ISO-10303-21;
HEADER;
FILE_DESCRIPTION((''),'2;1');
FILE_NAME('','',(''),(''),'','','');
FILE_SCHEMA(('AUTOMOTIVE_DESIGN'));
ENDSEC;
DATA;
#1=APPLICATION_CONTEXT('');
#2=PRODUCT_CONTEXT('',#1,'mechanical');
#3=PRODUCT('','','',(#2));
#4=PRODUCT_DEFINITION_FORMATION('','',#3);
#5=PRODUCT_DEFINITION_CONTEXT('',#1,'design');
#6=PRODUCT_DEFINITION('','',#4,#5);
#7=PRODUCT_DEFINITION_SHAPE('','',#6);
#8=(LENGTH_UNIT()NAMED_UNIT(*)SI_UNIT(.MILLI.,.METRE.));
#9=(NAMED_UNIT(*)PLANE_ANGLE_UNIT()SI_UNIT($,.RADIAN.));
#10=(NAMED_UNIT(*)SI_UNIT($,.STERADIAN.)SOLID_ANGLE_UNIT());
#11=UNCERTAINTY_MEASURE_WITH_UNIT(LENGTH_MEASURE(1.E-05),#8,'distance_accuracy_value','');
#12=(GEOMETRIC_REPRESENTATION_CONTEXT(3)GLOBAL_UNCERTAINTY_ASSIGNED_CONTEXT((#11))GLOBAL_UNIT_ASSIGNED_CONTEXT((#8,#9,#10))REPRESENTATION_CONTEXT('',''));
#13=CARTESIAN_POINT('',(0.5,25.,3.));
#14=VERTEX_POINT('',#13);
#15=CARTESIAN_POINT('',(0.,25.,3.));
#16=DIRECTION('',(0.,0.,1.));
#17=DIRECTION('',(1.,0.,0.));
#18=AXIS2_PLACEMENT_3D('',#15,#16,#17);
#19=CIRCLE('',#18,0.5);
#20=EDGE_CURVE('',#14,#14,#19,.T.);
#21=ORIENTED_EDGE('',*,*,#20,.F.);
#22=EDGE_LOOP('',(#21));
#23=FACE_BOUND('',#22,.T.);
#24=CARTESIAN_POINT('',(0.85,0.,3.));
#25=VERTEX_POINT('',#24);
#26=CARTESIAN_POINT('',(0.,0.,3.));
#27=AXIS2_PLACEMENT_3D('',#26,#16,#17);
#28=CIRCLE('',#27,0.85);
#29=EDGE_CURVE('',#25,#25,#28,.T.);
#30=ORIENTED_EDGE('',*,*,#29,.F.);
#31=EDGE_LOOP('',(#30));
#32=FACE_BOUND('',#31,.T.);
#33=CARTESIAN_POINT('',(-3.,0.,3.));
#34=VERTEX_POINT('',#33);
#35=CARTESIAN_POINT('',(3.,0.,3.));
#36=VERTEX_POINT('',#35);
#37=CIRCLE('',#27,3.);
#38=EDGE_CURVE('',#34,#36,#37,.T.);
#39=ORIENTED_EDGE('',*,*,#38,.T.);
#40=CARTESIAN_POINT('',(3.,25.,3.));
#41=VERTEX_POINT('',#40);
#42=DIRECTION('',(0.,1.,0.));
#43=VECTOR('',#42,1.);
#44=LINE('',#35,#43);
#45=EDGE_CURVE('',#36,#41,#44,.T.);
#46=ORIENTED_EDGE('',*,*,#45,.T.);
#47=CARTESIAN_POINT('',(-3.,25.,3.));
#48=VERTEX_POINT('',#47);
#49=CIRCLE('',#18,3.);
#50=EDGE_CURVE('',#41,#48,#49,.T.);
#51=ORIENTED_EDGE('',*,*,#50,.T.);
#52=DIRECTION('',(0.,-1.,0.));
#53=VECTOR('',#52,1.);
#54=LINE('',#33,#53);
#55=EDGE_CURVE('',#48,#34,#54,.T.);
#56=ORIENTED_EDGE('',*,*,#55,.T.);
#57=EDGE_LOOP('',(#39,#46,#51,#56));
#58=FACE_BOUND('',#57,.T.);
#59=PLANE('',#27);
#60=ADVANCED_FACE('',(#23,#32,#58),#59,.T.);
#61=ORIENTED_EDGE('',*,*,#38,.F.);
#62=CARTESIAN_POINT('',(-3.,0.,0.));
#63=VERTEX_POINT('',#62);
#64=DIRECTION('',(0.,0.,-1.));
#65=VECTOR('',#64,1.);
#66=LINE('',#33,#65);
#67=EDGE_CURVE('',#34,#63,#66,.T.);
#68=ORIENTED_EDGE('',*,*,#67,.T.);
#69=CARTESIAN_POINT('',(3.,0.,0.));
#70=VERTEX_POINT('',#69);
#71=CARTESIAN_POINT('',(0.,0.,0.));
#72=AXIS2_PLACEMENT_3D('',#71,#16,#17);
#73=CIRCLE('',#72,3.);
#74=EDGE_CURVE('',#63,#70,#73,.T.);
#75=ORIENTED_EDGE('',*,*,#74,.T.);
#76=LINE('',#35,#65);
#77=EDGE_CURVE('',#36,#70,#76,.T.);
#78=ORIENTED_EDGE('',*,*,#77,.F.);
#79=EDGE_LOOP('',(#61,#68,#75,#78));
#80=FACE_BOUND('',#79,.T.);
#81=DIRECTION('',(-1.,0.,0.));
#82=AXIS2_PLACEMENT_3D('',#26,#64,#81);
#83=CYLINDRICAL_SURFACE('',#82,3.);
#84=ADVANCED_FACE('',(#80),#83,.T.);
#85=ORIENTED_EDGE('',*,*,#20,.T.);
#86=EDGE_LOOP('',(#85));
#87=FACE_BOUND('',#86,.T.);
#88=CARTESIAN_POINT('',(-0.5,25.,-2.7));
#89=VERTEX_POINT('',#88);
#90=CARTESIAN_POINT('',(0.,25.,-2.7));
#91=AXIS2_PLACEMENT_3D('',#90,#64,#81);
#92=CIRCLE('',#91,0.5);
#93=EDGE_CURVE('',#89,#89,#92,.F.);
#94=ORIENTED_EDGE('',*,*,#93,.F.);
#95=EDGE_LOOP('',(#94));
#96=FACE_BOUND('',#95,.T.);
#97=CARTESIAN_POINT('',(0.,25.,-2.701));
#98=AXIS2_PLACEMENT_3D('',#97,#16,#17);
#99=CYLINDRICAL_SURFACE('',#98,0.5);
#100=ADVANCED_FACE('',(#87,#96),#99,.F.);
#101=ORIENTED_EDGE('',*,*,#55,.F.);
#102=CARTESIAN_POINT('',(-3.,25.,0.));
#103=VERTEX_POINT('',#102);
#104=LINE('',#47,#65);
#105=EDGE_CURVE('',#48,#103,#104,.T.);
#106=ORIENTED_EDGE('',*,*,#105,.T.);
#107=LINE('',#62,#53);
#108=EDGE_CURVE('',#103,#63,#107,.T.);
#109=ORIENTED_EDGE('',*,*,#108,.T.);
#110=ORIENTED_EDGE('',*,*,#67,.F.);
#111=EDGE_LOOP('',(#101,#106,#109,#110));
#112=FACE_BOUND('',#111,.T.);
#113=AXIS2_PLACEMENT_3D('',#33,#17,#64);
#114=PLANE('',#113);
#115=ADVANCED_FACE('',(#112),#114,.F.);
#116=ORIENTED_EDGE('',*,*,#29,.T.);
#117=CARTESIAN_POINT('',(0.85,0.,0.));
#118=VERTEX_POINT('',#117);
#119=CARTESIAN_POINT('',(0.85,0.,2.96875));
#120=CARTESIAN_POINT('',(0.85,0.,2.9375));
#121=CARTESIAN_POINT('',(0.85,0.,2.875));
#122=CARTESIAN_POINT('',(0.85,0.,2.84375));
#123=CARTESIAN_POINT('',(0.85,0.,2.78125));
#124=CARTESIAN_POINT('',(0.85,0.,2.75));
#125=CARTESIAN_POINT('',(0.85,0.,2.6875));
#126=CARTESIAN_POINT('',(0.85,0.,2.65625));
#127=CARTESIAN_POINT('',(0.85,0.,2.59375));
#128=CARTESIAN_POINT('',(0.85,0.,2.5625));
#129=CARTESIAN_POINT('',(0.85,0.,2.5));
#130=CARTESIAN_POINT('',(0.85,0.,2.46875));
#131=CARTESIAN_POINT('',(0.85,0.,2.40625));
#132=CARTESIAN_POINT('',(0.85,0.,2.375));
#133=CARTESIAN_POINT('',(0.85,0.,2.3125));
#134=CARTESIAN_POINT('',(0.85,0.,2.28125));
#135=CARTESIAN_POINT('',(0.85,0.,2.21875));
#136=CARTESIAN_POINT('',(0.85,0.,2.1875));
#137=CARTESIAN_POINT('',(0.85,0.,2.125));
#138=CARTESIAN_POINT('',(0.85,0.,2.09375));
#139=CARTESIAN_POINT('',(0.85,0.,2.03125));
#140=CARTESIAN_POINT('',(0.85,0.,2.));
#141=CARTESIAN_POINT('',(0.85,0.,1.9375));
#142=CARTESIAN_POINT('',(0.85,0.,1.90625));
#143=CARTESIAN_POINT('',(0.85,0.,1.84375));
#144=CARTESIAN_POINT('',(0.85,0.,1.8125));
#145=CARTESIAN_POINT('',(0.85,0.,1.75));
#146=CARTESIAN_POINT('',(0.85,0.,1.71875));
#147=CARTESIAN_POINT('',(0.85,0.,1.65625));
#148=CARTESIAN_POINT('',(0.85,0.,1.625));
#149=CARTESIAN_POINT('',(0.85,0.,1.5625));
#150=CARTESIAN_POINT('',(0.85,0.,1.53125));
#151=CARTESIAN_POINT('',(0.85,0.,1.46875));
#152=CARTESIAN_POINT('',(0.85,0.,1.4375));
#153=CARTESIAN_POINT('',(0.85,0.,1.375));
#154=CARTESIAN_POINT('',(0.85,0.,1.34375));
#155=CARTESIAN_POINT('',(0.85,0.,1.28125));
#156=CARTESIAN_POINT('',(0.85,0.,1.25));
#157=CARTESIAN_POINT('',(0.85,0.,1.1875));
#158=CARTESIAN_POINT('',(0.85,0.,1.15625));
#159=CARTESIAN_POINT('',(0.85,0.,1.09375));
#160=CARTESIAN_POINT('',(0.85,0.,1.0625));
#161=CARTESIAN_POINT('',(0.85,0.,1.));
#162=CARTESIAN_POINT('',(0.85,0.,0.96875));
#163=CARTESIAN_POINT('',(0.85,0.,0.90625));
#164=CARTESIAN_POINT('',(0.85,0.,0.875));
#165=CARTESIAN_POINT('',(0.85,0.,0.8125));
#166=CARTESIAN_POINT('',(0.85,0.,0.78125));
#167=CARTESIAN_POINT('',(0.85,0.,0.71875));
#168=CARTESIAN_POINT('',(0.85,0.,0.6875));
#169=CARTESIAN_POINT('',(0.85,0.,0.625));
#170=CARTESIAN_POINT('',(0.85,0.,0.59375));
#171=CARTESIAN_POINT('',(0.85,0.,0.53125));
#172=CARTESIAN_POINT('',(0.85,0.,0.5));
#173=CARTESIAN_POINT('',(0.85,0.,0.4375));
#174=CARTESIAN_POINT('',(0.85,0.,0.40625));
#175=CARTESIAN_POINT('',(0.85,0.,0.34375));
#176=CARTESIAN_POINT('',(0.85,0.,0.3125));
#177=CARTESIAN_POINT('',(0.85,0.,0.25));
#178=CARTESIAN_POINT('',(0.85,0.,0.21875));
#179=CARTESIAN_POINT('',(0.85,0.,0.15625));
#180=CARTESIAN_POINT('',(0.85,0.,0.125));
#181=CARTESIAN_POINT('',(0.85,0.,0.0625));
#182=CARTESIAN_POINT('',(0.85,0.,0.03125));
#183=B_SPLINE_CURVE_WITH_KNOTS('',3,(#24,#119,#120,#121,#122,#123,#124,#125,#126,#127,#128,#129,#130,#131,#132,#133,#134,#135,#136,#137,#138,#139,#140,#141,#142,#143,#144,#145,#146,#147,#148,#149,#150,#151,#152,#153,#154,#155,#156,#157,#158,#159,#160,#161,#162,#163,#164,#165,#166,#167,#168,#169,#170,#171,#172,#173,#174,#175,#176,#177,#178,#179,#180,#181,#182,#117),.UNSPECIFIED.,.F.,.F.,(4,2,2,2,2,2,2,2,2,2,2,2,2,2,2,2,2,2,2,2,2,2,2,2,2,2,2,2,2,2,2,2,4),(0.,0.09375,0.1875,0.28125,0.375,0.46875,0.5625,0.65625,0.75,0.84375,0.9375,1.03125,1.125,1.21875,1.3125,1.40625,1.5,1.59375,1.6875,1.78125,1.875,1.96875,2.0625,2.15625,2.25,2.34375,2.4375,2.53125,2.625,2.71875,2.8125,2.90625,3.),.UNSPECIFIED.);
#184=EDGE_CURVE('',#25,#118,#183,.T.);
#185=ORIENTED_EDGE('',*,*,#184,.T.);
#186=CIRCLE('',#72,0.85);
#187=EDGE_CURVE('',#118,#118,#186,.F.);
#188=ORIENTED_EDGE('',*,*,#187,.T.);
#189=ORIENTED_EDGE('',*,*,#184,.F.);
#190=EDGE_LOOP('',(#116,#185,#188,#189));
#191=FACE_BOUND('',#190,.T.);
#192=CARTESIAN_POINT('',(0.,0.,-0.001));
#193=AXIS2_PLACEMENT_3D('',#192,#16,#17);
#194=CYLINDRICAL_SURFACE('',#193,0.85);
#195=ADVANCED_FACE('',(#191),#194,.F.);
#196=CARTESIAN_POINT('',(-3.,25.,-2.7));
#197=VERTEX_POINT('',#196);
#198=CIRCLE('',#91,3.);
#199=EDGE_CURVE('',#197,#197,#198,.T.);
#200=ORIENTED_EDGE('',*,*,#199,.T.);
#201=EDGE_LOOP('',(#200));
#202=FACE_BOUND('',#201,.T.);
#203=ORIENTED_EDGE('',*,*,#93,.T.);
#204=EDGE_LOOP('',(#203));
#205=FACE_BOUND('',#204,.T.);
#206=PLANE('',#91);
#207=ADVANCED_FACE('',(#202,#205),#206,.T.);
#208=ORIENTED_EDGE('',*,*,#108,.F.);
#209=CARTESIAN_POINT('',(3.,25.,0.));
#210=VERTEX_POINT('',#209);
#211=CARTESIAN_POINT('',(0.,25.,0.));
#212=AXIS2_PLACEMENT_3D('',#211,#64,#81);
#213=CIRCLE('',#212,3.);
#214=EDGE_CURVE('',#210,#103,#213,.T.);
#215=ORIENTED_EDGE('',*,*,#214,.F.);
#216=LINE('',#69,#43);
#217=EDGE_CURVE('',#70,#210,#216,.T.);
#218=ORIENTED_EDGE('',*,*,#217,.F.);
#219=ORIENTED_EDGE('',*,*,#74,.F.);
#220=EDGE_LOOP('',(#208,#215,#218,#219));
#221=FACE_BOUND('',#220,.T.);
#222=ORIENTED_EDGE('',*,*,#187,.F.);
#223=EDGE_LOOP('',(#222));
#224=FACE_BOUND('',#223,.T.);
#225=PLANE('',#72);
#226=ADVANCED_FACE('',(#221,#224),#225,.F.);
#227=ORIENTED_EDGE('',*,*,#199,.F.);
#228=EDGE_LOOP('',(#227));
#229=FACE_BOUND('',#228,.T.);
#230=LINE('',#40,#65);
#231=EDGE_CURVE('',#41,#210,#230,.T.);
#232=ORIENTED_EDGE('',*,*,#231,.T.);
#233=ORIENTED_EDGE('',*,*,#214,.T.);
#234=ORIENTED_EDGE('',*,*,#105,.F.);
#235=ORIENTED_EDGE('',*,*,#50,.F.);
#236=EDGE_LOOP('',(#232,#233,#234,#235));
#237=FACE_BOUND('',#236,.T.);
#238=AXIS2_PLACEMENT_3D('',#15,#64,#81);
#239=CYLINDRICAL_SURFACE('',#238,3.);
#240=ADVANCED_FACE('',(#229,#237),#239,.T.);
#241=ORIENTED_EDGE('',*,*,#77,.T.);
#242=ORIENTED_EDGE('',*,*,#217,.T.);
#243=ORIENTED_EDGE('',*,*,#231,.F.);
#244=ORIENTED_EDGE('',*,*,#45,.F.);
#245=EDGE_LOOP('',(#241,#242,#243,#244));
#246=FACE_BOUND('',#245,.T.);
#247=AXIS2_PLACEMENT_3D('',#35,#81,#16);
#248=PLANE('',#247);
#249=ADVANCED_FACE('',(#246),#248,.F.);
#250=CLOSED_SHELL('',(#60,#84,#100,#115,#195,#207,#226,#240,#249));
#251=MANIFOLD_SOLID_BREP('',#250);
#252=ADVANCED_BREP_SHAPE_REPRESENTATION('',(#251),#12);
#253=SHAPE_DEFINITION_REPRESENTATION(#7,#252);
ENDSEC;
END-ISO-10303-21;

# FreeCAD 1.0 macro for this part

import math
import FreeCAD as App
import Part
import Sketcher

V = App.Vector
Q = App.Units.Quantity

doc = App.newDocument("Part")
body = doc.addObject("PartDesign::Body", "Body")

# Sketch on XY plane
sketch1 = body.newObject("Sketcher::SketchObject", "Sketch")
sketch1.AttachmentSupport = (doc.getObject("XY_Plane"), [""])
sketch1.MapMode = "FlatFace"
sketch1.addGeometry([
    Part.LineSegment(V(-3, 25, 0), V(-3, 0, 0)),
    Part.ArcOfCircle(Part.Circle(V(0, 0, 0), V(0, 0, 1), 3), math.radians(180), math.radians(360)),
    Part.LineSegment(V(3, 0, 0), V(3, 25, 0)),
    Part.ArcOfCircle(Part.Circle(V(0, 25, 0), V(0, 0, 1), 3), math.radians(0), math.radians(180)),
], False)
sketch1.addConstraint([
    Sketcher.Constraint("Tangent", 0, 2, 1, 1),
    Sketcher.Constraint("Tangent", 1, 2, 2, 1),
    Sketcher.Constraint("Tangent", 2, 2, 3, 1),
    Sketcher.Constraint("Tangent", 3, 2, 0, 1),
    Sketcher.Constraint("Vertical", 0),
    Sketcher.Constraint("Vertical", 2),
    Sketcher.Constraint("Coincident", 1, 3, -1, 1),
    Sketcher.Constraint("Radius", 1, Q("3 mm")),
    Sketcher.Constraint("DistanceY", 0, 2, 0, 1, Q("25 mm")),
])
pad1 = body.newObject("PartDesign::Pad", "Pad")
pad1.Profile = sketch1
pad1.Length = 3

# Sketch on XY plane
sketch2 = body.newObject("Sketcher::SketchObject", "Sketch001")
sketch2.AttachmentSupport = (doc.getObject("XY_Plane"), [""])
sketch2.MapMode = "FlatFace"
sketch2.AttachmentOffset = App.Placement(V(0, 0, 3), App.Rotation())
sketch2.addGeometry(Part.Circle(V(0, 0, 0), V(0, 0, 1), 0.85), False)
sketch2.addConstraint([
    Sketcher.Constraint("Coincident", 0, 3, -1, 1),
    Sketcher.Constraint("Diameter", 0, Q("1.7 mm")),
])
pocket1 = body.newObject("PartDesign::Pocket", "Pocket")
pocket1.Profile = sketch2
pocket1.Type = "UpToFirst"

# Sketch on XY plane
sketch3 = body.newObject("Sketcher::SketchObject", "Sketch002")
sketch3.AttachmentSupport = (doc.getObject("XY_Plane"), [""])
sketch3.MapMode = "FlatFace"
sketch3.AttachmentOffset = App.Placement(V(0, 0, -2.7), App.Rotation())
sketch3.addGeometry(Part.Circle(V(0, 25, 0), V(0, 0, 1), 3), False)
sketch3.addConstraint([
    Sketcher.Constraint("PointOnObject", 0, 3, -2),
    Sketcher.Constraint("Diameter", 0, Q("6 mm")),
    Sketcher.Constraint("DistanceY", -1, 1, 0, 3, Q("25 mm")),
])
pad2 = body.newObject("PartDesign::Pad", "Pad001")
pad2.Profile = sketch3
pad2.Length = 2.7

# Sketch on XY plane
sketch4 = body.newObject("Sketcher::SketchObject", "Sketch003")
sketch4.AttachmentSupport = (doc.getObject("XY_Plane"), [""])
sketch4.MapMode = "FlatFace"
sketch4.AttachmentOffset = App.Placement(V(0, 0, 3), App.Rotation())
sketch4.addGeometry(Part.Circle(V(0, 25, 0), V(0, 0, 1), 0.5), False)
sketch4.addConstraint([
    Sketcher.Constraint("PointOnObject", 0, 3, -2),
    Sketcher.Constraint("Diameter", 0, Q("1 mm")),
    Sketcher.Constraint("DistanceY", -1, 1, 0, 3, Q("25 mm")),
])
pocket2 = body.newObject("PartDesign::Pocket", "Pocket001")
pocket2.Profile = sketch4
pocket2.Type = "UpToFirst"

doc.recompute()
